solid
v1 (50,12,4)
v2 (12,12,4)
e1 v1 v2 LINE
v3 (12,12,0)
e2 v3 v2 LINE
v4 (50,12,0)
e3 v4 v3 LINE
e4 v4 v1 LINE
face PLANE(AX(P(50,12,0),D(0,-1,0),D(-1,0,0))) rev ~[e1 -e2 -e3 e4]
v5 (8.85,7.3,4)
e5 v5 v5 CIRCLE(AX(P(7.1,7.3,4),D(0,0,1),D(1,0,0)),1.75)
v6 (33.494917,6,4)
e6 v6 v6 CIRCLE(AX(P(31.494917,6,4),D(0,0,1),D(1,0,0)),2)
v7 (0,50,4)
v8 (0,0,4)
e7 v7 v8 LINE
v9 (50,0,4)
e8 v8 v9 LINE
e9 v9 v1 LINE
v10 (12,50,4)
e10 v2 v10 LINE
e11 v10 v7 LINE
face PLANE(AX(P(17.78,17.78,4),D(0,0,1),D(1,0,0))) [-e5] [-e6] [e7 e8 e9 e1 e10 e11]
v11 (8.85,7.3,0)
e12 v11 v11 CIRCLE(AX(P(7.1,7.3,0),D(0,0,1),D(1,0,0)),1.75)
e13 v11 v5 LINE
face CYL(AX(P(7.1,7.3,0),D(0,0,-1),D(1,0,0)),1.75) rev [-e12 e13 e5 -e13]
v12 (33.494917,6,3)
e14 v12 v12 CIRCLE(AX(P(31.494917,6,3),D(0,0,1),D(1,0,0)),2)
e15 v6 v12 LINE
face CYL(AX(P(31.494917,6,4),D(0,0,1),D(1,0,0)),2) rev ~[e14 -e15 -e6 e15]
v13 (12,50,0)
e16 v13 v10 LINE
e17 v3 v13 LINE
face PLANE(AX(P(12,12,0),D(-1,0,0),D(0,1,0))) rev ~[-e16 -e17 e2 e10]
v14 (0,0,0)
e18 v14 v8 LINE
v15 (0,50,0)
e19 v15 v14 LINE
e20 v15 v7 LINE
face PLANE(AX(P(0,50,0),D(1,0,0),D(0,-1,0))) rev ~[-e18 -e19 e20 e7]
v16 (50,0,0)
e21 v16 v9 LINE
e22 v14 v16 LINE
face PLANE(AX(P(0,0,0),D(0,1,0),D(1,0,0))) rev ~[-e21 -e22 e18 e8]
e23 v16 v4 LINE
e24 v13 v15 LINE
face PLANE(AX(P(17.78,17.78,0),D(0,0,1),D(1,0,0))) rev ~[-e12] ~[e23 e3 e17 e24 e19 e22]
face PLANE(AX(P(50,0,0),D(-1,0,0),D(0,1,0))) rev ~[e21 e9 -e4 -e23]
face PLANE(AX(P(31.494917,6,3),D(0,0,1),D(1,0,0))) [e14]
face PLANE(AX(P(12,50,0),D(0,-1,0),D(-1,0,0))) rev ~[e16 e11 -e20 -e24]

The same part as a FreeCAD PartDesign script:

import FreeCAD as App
import Part
import Sketcher
from FreeCAD import Vector
Q = App.Units.Quantity

doc = App.newDocument("Part")
body = doc.addObject("PartDesign::Body", "Body")

# Sketch on XY plane
sketch1 = body.newObject("Sketcher::SketchObject", "Sketch")
sketch1.AttachmentSupport = (doc.getObject("XY_Plane"), [""])
sketch1.MapMode = "FlatFace"
sketch1.addGeometry([
    Part.LineSegment(Vector(0, 50, 0), Vector(0, 0, 0)),  # 0
    Part.LineSegment(Vector(0, 0, 0), Vector(50, 0, 0)),  # 1
    Part.LineSegment(Vector(50, 0, 0), Vector(50, 12, 0)),  # 2
    Part.LineSegment(Vector(50, 12, 0), Vector(12, 12, 0)),  # 3
    Part.LineSegment(Vector(12, 12, 0), Vector(12, 50, 0)),  # 4
    Part.LineSegment(Vector(12, 50, 0), Vector(0, 50, 0)),  # 5
    Part.Circle(Vector(7.1, 7.3, 0), Vector(0, 0, 1), 1.8),  # 6
], False)
sketch1.addConstraint([
    Sketcher.Constraint("Coincident", 0, 2, 1, 1),
    Sketcher.Constraint("Coincident", 1, 2, 2, 1),
    Sketcher.Constraint("Coincident", 2, 2, 3, 1),
    Sketcher.Constraint("Coincident", 3, 2, 4, 1),
    Sketcher.Constraint("Coincident", 4, 2, 5, 1),
    Sketcher.Constraint("Coincident", 5, 2, 0, 1),
    Sketcher.Constraint("Vertical", 0),
    Sketcher.Constraint("Horizontal", 1),
    Sketcher.Constraint("Vertical", 2),
    Sketcher.Constraint("Horizontal", 3),
    Sketcher.Constraint("Vertical", 4),
    Sketcher.Constraint("Horizontal", 5),
    Sketcher.Constraint("Coincident", 0, 2, -1, 1),
    Sketcher.Constraint("Equal", 1, 0),
    Sketcher.Constraint("Equal", 5, 2),
    Sketcher.Constraint("Diameter", 6, Q("3.5 mm")),
    Sketcher.Constraint("DistanceX", 1, 1, 1, 2, Q("50 mm")),
    Sketcher.Constraint("DistanceX", 3, 2, 3, 1, Q("38 mm")),
    Sketcher.Constraint("DistanceX", -1, 1, 6, 3, Q("7.1 mm")),
    Sketcher.Constraint("DistanceY", -1, 1, 6, 3, Q("7.3 mm")),
])
pad1 = body.newObject("PartDesign::Pad", "Pad")
pad1.Profile = sketch1
pad1.Length = 4

# Sketch on XY plane
sketch2 = body.newObject("Sketcher::SketchObject", "Sketch001")
sketch2.AttachmentSupport = (doc.getObject("XY_Plane"), [""])
sketch2.MapMode = "FlatFace"
sketch2.AttachmentOffset = App.Placement(Vector(0, 0, 4), App.Rotation())
sketch2.addGeometry(Part.Circle(Vector(31.5, 6, 0), Vector(0, 0, 1), 2), False)
sketch2.addConstraint([
    Sketcher.Constraint("Diameter", 0, Q("4 mm")),
    Sketcher.Constraint("DistanceY", -1, 1, 0, 3, Q("6 mm")),
    Sketcher.Constraint("DistanceX", -1, 1, 0, 3, Q("31.494917 mm")),
])
pocket1 = body.newObject("PartDesign::Pocket", "Pocket")
pocket1.Profile = sketch2
pocket1.Length = 1

doc.recompute()
